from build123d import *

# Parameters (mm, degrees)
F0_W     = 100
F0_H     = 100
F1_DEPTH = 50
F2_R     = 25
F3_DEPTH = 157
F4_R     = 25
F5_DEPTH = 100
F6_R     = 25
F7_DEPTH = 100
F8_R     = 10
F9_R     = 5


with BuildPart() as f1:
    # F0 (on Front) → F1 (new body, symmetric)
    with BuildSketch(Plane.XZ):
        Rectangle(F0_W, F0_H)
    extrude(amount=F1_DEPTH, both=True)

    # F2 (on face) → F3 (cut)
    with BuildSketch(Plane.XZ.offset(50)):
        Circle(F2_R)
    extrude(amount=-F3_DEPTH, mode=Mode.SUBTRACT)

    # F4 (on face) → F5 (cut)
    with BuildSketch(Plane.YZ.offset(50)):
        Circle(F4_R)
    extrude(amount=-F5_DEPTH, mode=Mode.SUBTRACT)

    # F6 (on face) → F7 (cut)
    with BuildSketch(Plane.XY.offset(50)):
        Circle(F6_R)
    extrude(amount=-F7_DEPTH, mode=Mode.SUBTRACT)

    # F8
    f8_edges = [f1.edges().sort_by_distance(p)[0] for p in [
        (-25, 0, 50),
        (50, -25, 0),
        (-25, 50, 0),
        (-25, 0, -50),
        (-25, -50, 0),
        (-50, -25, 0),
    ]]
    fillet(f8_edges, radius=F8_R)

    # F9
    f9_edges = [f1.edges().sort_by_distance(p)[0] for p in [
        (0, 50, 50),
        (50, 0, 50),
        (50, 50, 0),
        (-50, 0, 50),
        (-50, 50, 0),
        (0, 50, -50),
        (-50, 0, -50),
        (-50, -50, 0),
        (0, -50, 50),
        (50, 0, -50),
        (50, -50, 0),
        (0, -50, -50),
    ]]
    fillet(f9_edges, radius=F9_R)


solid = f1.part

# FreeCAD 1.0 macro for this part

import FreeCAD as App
import Part
import Sketcher

V = App.Vector
Q = App.Units.Quantity


def edges_at(feature, points):
    """Names of the edges that pass closest to the given points."""
    edges = feature.Shape.Edges
    near = lambda p: min(range(len(edges)), key=lambda i: edges[i].distToShape(Part.Vertex(*p))[0])
    return sorted({f"Edge{near(p) + 1}" for p in points})

doc = App.newDocument("Part")
body = doc.addObject("PartDesign::Body", "Body")

# Sketch on XZ plane
sketch1 = body.newObject("Sketcher::SketchObject", "Sketch")
sketch1.AttachmentSupport = (doc.getObject("XZ_Plane"), [""])
sketch1.MapMode = "FlatFace"
sketch1.addGeometry([
    Part.LineSegment(V(-50, 50, 0), V(-50, -50, 0)),
    Part.LineSegment(V(-50, -50, 0), V(50, -50, 0)),
    Part.LineSegment(V(50, -50, 0), V(50, 50, 0)),
    Part.LineSegment(V(50, 50, 0), V(-50, 50, 0)),
], False)
sketch1.addConstraint([
    Sketcher.Constraint("Coincident", 0, 2, 1, 1),
    Sketcher.Constraint("Coincident", 1, 2, 2, 1),
    Sketcher.Constraint("Coincident", 2, 2, 3, 1),
    Sketcher.Constraint("Coincident", 3, 2, 0, 1),
    Sketcher.Constraint("Vertical", 0),
    Sketcher.Constraint("Horizontal", 1),
    Sketcher.Constraint("Vertical", 2),
    Sketcher.Constraint("Horizontal", 3),
    Sketcher.Constraint("Symmetric", 0, 2, 2, 2, -1, 1),
    Sketcher.Constraint("Equal", 3, 0),
    Sketcher.Constraint("DistanceX", 1, 1, 1, 2, Q("100 mm")),
])
pad1 = body.newObject("PartDesign::Pad", "Pad")
pad1.Profile = sketch1
pad1.Length = 100
pad1.Midplane = True

# Sketch on XZ plane
sketch2 = body.newObject("Sketcher::SketchObject", "Sketch001")
sketch2.AttachmentSupport = (doc.getObject("XZ_Plane"), [""])
sketch2.MapMode = "FlatFace"
sketch2.AttachmentOffset = App.Placement(V(0, 0, 50), App.Rotation())
sketch2.addGeometry(Part.Circle(V(0, 0, 0), V(0, 0, 1), 25), False)
sketch2.addConstraint([
    Sketcher.Constraint("Coincident", 0, 3, -1, 1),
    Sketcher.Constraint("Diameter", 0, Q("50 mm")),
])
pocket1 = body.newObject("PartDesign::Pocket", "Pocket")
pocket1.Profile = sketch2
pocket1.Length = 157

# Sketch on YZ plane
sketch3 = body.newObject("Sketcher::SketchObject", "Sketch002")
sketch3.AttachmentSupport = (doc.getObject("YZ_Plane"), [""])
sketch3.MapMode = "FlatFace"
sketch3.AttachmentOffset = App.Placement(V(0, 0, 50), App.Rotation())
sketch3.addGeometry(Part.Circle(V(0, 0, 0), V(0, 0, 1), 25), False)
sketch3.addConstraint([
    Sketcher.Constraint("Coincident", 0, 3, -1, 1),
    Sketcher.Constraint("Diameter", 0, Q("50 mm")),
])
pocket2 = body.newObject("PartDesign::Pocket", "Pocket001")
pocket2.Profile = sketch3
pocket2.Length = 100

# Sketch on XY plane
sketch4 = body.newObject("Sketcher::SketchObject", "Sketch003")
sketch4.AttachmentSupport = (doc.getObject("XY_Plane"), [""])
sketch4.MapMode = "FlatFace"
sketch4.AttachmentOffset = App.Placement(V(0, 0, 50), App.Rotation())
sketch4.addGeometry(Part.Circle(V(0, 0, 0), V(0, 0, 1), 25), False)
sketch4.addConstraint([
    Sketcher.Constraint("Coincident", 0, 3, -1, 1),
    Sketcher.Constraint("Diameter", 0, Q("50 mm")),
])
pocket3 = body.newObject("PartDesign::Pocket", "Pocket002")
pocket3.Profile = sketch4
pocket3.Length = 100
doc.recompute()

fillet = body.newObject("PartDesign::Fillet", "Fillet")
fillet.Base = (pocket3, edges_at(pocket3, [
    (-25, 0, 50),
    (50, -25, 0),
    (-25, 50, 0),
    (-25, 0, -50),
    (-25, -50, 0),
    (-50, -25, 0),
]))
fillet.Radius = 10
doc.recompute()

fillet2 = body.newObject("PartDesign::Fillet", "Fillet001")
fillet2.Base = (fillet, edges_at(fillet, [
    (0, 50, 50),
    (50, 0, 50),
    (50, 50, 0),
    (-50, 0, 50),
    (-50, 50, 0),
    (0, 50, -50),
    (-50, 0, -50),
    (-50, -50, 0),
    (0, -50, 50),
    (50, 0, -50),
    (50, -50, 0),
    (0, -50, -50),
]))
fillet2.Radius = 5

doc.recompute()
